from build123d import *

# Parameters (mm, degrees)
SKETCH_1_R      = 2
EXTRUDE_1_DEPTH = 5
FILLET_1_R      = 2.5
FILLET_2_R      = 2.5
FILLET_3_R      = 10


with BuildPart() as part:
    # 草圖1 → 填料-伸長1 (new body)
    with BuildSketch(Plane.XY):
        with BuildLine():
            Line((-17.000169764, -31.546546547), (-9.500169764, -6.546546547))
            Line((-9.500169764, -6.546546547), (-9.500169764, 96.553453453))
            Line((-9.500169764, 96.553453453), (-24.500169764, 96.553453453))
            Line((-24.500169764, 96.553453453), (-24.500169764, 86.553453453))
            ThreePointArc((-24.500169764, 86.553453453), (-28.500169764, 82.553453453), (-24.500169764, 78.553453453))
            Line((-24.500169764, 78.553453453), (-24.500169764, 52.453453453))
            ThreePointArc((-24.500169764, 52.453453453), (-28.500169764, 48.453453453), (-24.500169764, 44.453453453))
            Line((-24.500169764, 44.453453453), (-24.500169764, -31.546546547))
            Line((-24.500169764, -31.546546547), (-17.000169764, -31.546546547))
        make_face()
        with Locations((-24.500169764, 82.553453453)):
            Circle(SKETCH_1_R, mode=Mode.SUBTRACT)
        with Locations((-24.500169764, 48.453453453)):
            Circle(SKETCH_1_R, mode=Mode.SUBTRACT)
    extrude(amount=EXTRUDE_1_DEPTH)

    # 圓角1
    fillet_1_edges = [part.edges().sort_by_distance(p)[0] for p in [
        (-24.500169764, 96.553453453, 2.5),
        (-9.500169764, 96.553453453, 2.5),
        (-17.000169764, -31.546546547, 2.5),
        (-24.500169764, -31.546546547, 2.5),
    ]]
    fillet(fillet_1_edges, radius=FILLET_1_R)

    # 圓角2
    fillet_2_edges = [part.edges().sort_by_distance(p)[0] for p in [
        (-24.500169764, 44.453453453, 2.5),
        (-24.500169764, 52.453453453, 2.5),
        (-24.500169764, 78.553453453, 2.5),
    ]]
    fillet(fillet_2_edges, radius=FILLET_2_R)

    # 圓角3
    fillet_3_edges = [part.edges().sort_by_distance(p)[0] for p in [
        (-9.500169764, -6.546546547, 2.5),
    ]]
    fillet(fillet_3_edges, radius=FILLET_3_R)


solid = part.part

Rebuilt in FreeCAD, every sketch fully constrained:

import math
import FreeCAD as App
import Part
import Sketcher
Q = App.Units.Quantity


def edges_at(feature, points):
    """Names of the edges that pass closest to the given points."""
    edges = feature.Shape.Edges
    near = lambda p: min(range(len(edges)), key=lambda i: edges[i].distToShape(Part.Vertex(*p))[0])
    return sorted({f"Edge{near(p) + 1}" for p in points})

doc = App.newDocument("Part")
body = doc.addObject("PartDesign::Body", "Body")

# Sketch on XY plane
sketch1 = body.newObject("Sketcher::SketchObject", "Sketch")
sketch1.AttachmentSupport = (doc.getObject("XY_Plane"), [""])
sketch1.MapMode = "FlatFace"
sketch1.addGeometry([
    Part.LineSegment(App.Vector(-17, -31.5, 0), App.Vector(-9.5, -6.5, 0)),  # 0
    Part.LineSegment(App.Vector(-9.5, -6.5, 0), App.Vector(-9.5, 96.6, 0)),  # 1
    Part.LineSegment(App.Vector(-9.5, 96.6, 0), App.Vector(-24.5, 96.6, 0)),  # 2
    Part.LineSegment(App.Vector(-24.5, 96.6, 0), App.Vector(-24.5, 86.6, 0)),  # 3
    Part.ArcOfCircle(Part.Circle(App.Vector(-24.5, 82.6, 0), App.Vector(0, 0, 1), 4), math.radians(90), math.radians(270)),  # 4
    Part.LineSegment(App.Vector(-24.5, 78.6, 0), App.Vector(-24.5, 52.5, 0)),  # 5
    Part.ArcOfCircle(Part.Circle(App.Vector(-24.5, 48.5, 0), App.Vector(0, 0, 1), 4), math.radians(90), math.radians(270)),  # 6
    Part.LineSegment(App.Vector(-24.5, 44.5, 0), App.Vector(-24.5, -31.5, 0)),  # 7
    Part.LineSegment(App.Vector(-24.5, -31.5, 0), App.Vector(-17, -31.5, 0)),  # 8
    Part.Circle(App.Vector(-24.5, 48.5, 0), App.Vector(0, 0, 1), 2),  # 9
    Part.Circle(App.Vector(-24.5, 82.6, 0), App.Vector(0, 0, 1), 2),  # 10
], False)
sketch1.addConstraint([
    Sketcher.Constraint("Coincident", 0, 2, 1, 1),
    Sketcher.Constraint("Coincident", 1, 2, 2, 1),
    Sketcher.Constraint("Coincident", 2, 2, 3, 1),
    Sketcher.Constraint("Coincident", 3, 2, 4, 1),
    Sketcher.Constraint("Coincident", 4, 2, 5, 1),
    Sketcher.Constraint("Coincident", 5, 2, 6, 1),
    Sketcher.Constraint("Coincident", 6, 2, 7, 1),
    Sketcher.Constraint("Coincident", 7, 2, 8, 1),
    Sketcher.Constraint("Coincident", 8, 2, 0, 1),
    Sketcher.Constraint("Vertical", 1),
    Sketcher.Constraint("Horizontal", 2),
    Sketcher.Constraint("Vertical", 3),
    Sketcher.Constraint("Vertical", 5),
    Sketcher.Constraint("Vertical", 7),
    Sketcher.Constraint("Horizontal", 8),
    Sketcher.Constraint("Coincident", 9, 3, 6, 3),
    Sketcher.Constraint("Coincident", 10, 3, 4, 3),
    Sketcher.Constraint("Equal", 4, 6),
    Sketcher.Constraint("Equal", 9, 10),
    Sketcher.Constraint("Vertical", 4, 3, 6, 3),
    Sketcher.Constraint("Vertical", 10, 3, 2, 2),
    Sketcher.Constraint("Vertical", 3, 2, 4, 2),
    Sketcher.Constraint("Vertical", 5, 2, 6, 2),
    Sketcher.Constraint("Diameter", 9, Q("4 mm")),
    Sketcher.Constraint("Radius", 4, Q("4 mm")),
    Sketcher.Constraint("DistanceX", 2, 2, 2, 1, Q("15 mm")),
    Sketcher.Constraint("DistanceY", 3, 2, 3, 1, Q("10 mm")),
    Sketcher.Constraint("DistanceY", 7, 2, 7, 1, Q("76 mm")),
    Sketcher.Constraint("DistanceX", 8, 1, 8, 2, Q("7.5 mm")),
    Sketcher.Constraint("DistanceY", 1, 1, 1, 2, Q("103.1 mm")),
    Sketcher.Constraint("DistanceY", 5, 2, 5, 1, Q("26.1 mm")),
    Sketcher.Constraint("DistanceX", 4, 3, -1, 1, Q("24.50017 mm")),
    Sketcher.Constraint("DistanceY", -1, 1, 4, 3, Q("82.553453 mm")),
])
pad1 = body.newObject("PartDesign::Pad", "Pad")
pad1.Profile = sketch1
pad1.Length = 5
doc.recompute()

fillet = body.newObject("PartDesign::Fillet", "Fillet")
fillet.Base = (pad1, edges_at(pad1, [
    (-24.5, 96.553, 2.5),
    (-9.5, 96.553, 2.5),
    (-17, -31.547, 2.5),
    (-24.5, -31.547, 2.5),
]))
fillet.Radius = 2.5
doc.recompute()

fillet2 = body.newObject("PartDesign::Fillet", "Fillet001")
fillet2.Base = (fillet, edges_at(fillet, [(-24.5, 44.453, 2.5), (-24.5, 52.453, 2.5), (-24.5, 78.553, 2.5)]))
fillet2.Radius = 2.5
doc.recompute()

fillet3 = body.newObject("PartDesign::Fillet", "Fillet002")
fillet3.Base = (fillet2, edges_at(fillet2, [(-9.5, -6.547, 2.5)]))
fillet3.Radius = 10

doc.recompute()
